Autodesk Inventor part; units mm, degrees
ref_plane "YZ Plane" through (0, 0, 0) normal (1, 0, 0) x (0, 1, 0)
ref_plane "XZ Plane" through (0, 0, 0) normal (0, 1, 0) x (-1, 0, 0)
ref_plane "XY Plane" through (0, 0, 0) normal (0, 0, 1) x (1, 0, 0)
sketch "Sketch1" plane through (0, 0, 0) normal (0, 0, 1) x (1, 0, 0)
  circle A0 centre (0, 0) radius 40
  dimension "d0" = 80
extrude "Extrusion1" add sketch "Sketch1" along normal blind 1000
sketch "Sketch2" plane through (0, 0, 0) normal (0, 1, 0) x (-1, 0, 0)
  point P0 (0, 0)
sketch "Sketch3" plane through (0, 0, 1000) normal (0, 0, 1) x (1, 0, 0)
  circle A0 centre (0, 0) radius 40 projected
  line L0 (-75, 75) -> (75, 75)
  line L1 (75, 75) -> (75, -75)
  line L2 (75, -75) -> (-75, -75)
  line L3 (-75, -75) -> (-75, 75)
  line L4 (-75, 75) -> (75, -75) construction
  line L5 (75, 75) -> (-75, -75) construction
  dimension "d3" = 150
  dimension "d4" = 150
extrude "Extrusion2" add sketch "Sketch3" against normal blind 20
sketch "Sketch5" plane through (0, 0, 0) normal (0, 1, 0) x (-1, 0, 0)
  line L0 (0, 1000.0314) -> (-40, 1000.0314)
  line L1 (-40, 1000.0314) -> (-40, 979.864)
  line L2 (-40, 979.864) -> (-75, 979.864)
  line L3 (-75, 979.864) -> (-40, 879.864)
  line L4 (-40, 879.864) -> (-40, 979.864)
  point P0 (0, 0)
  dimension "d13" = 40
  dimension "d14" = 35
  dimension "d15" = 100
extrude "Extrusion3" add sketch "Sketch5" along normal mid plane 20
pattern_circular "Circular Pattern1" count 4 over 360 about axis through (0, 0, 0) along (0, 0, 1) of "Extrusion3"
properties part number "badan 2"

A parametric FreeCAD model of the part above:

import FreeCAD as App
import Part
import Sketcher


def add_polygon(sketch, points):
    """Adds a closed chain of lines whose ends are joined by coincident constraints."""
    first, n = sketch.GeometryCount, len(points)
    for a, b in zip(points, points[1:] + points[:1]):
        sketch.addGeometry(Part.LineSegment(App.Vector(*a, 0), App.Vector(*b, 0)), False)
    for i in range(n):
        sketch.addConstraint(Sketcher.Constraint("Coincident", first + i, 2, first + (i + 1) % n, 1))

doc = App.newDocument("Part")
body = doc.addObject("PartDesign::Body", "Body")
body.AllowCompound = True

sketch1 = body.newObject("Sketcher::SketchObject", "Sketch")
sketch1.AttachmentSupport = (doc.getObject("XY_Plane"), [""])
sketch1.MapMode = "FlatFace"
sketch1.addGeometry(Part.Circle(App.Vector(0, 0, 0), App.Vector(0, 0, 1), 40), False)
sketch1.addConstraint([
    Sketcher.Constraint("Coincident", 0, 3, -1, 1),
    Sketcher.Constraint("Diameter", 0, 80.0),
])
pad1 = body.newObject("PartDesign::Pad", "Pad")
pad1.Profile = sketch1
pad1.Length = 1000

sketch2 = body.newObject("Sketcher::SketchObject", "Sketch001")
sketch2.AttachmentSupport = (doc.getObject("XY_Plane"), [""])
sketch2.MapMode = "FlatFace"
sketch2.AttachmentOffset = App.Placement(App.Vector(0, 0, 1000), App.Rotation())
add_polygon(sketch2, [(75, 75), (-75, 75), (-75, -75), (75, -75)])
sketch2.addGeometry(Part.Circle(App.Vector(0, 0, 0), App.Vector(0, 0, 1), 40), False)
sketch2.addConstraint([
    Sketcher.Constraint("Horizontal", 0),
    Sketcher.Constraint("Vertical", 1),
    Sketcher.Constraint("Horizontal", 2),
    Sketcher.Constraint("Vertical", 3),
    Sketcher.Constraint("Coincident", 4, 3, -1, 1),
    Sketcher.Constraint("Symmetric", 0, 2, 2, 2, -1, 1),
    Sketcher.Constraint("Equal", 2, 1),
    Sketcher.Constraint("DistanceX", 0, 2, 0, 1, 150.0),
    Sketcher.Constraint("Diameter", 4, 80.0),
])
pad2 = body.newObject("PartDesign::Pad", "Pad001")
pad2.Profile = sketch2
pad2.Length = 20
pad2.Reversed = True

sketch3 = body.newObject("Sketcher::SketchObject", "Sketch002")
sketch3.AttachmentSupport = (doc.getObject("XZ_Plane"), [""])
sketch3.MapMode = "FlatFace"
add_polygon(sketch3, [(40, 880), (40, 980), (75, 980)])
sketch3.addConstraint([
    Sketcher.Constraint("Vertical", 0),
    Sketcher.Constraint("Horizontal", 1),
    Sketcher.Constraint("DistanceX", 1, 1, 1, 2, 35.0),
    Sketcher.Constraint("DistanceY", 0, 1, 0, 2, 100.0),
    Sketcher.Constraint("DistanceX", -1, 1, 0, 2, 40.0),
    Sketcher.Constraint("DistanceY", -1, 1, 0, 2, 979.864),
])
pad3 = body.newObject("PartDesign::Pad", "Pad002")
pad3.Profile = sketch3
pad3.Length = 20
pad3.Midplane = True
doc.recompute()

polarpattern = body.newObject("PartDesign::PolarPattern", "PolarPattern")
polarpattern.Originals = [pad3]
polarpattern.Axis = (doc.getObject("Z_Axis"), [""])
polarpattern.Angle = 360
polarpattern.Occurrences = 4
body.Tip = polarpattern

doc.recompute()
